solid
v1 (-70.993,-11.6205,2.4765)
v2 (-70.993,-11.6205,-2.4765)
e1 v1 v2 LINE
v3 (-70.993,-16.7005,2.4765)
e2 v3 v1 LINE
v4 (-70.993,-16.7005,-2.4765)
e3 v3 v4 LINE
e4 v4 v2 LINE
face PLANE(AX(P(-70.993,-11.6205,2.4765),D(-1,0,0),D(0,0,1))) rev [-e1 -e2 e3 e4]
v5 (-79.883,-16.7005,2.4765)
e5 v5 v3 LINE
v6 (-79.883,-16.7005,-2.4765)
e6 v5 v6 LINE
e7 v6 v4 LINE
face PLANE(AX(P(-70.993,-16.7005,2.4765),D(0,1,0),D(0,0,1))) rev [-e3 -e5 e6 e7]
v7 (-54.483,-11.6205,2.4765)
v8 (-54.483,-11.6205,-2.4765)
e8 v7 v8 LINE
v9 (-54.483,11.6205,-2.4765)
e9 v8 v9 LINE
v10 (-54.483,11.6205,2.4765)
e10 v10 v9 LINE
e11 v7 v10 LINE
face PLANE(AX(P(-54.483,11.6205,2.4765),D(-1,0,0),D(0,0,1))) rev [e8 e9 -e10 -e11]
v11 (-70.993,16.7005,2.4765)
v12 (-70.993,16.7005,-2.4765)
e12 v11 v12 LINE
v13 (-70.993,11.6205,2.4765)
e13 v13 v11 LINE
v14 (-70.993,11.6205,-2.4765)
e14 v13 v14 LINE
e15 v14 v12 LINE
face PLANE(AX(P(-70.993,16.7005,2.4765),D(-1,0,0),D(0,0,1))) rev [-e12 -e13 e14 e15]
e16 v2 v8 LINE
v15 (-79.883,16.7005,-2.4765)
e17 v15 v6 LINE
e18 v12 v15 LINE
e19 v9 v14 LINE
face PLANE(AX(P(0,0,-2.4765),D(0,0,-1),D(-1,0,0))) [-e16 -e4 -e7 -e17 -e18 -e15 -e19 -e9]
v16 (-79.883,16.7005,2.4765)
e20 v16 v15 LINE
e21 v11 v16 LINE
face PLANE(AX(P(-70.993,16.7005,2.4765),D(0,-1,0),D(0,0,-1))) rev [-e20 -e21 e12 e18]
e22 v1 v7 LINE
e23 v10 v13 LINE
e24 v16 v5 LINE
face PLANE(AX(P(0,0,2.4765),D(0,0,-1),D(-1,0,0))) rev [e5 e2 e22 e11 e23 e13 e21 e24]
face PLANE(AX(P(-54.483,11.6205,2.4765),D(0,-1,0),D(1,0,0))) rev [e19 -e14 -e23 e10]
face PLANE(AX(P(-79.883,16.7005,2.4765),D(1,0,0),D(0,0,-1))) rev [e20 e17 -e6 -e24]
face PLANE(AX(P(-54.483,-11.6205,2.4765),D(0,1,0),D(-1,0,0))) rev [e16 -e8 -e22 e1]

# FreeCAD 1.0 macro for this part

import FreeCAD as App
import Part
import Sketcher

V = App.Vector
Q = App.Units.Quantity


def add_polygon(sketch, points):
    """Adds a closed chain of lines whose ends are joined by coincident constraints."""
    first, n = sketch.GeometryCount, len(points)
    for a, b in zip(points, points[1:] + points[:1]):
        sketch.addGeometry(Part.LineSegment(App.Vector(*a, 0), App.Vector(*b, 0)), False)
    for i in range(n):
        sketch.addConstraint(Sketcher.Constraint("Coincident", first + i, 2, first + (i + 1) % n, 1))

doc = App.newDocument("Part")
body = doc.addObject("PartDesign::Body", "Body")

# Sketch on XY plane
sketch1 = doc.addObject("Sketcher::SketchObject", "Sketch")
body.addObject(sketch1)
sketch1.AttachmentSupport = (doc.XY_Plane, [""])
sketch1.MapMode = "FlatFace"
add_polygon(sketch1, [(-54, 12), (-71, 12), (-71, 17), (-80, 17), (-80, -17), (-71, -17), (-71, -12), (-54, -12)])  # lines 0-7
sketch1.addConstraint(Sketcher.Constraint("Horizontal", 0))
sketch1.addConstraint(Sketcher.Constraint("Vertical", 1))
sketch1.addConstraint(Sketcher.Constraint("Horizontal", 2))
sketch1.addConstraint(Sketcher.Constraint("Vertical", 3))
sketch1.addConstraint(Sketcher.Constraint("Horizontal", 4))
sketch1.addConstraint(Sketcher.Constraint("Vertical", 5))
sketch1.addConstraint(Sketcher.Constraint("Horizontal", 6))
sketch1.addConstraint(Sketcher.Constraint("Vertical", 7))
sketch1.addConstraint(Sketcher.Constraint("Symmetric", 1, 2, 4, 2, -1))
sketch1.addConstraint(Sketcher.Constraint("Equal", 1, 5))
sketch1.addConstraint(Sketcher.Constraint("DistanceY", 1, 1, 1, 2, Q("0.2 in")))
sketch1.addConstraint(Sketcher.Constraint("DistanceX", 3, 2, 6, 2, Q("1 in")))
sketch1.addConstraint(Sketcher.Constraint("DistanceX", 0, 2, 0, 1, Q("0.65 in")))
sketch1.addConstraint(Sketcher.Constraint("DistanceY", 3, 2, 3, 1, Q("1.315 in")))
sketch1.addConstraint(Sketcher.Constraint("DistanceX", 0, 2, -1, 1, Q("2.795 in")))
pad1 = doc.addObject("PartDesign::Pad", "Pad")
body.addObject(pad1)
pad1.Profile = sketch1
pad1.Length = Q("0.195 in")
pad1.Midplane = True

doc.recompute()
